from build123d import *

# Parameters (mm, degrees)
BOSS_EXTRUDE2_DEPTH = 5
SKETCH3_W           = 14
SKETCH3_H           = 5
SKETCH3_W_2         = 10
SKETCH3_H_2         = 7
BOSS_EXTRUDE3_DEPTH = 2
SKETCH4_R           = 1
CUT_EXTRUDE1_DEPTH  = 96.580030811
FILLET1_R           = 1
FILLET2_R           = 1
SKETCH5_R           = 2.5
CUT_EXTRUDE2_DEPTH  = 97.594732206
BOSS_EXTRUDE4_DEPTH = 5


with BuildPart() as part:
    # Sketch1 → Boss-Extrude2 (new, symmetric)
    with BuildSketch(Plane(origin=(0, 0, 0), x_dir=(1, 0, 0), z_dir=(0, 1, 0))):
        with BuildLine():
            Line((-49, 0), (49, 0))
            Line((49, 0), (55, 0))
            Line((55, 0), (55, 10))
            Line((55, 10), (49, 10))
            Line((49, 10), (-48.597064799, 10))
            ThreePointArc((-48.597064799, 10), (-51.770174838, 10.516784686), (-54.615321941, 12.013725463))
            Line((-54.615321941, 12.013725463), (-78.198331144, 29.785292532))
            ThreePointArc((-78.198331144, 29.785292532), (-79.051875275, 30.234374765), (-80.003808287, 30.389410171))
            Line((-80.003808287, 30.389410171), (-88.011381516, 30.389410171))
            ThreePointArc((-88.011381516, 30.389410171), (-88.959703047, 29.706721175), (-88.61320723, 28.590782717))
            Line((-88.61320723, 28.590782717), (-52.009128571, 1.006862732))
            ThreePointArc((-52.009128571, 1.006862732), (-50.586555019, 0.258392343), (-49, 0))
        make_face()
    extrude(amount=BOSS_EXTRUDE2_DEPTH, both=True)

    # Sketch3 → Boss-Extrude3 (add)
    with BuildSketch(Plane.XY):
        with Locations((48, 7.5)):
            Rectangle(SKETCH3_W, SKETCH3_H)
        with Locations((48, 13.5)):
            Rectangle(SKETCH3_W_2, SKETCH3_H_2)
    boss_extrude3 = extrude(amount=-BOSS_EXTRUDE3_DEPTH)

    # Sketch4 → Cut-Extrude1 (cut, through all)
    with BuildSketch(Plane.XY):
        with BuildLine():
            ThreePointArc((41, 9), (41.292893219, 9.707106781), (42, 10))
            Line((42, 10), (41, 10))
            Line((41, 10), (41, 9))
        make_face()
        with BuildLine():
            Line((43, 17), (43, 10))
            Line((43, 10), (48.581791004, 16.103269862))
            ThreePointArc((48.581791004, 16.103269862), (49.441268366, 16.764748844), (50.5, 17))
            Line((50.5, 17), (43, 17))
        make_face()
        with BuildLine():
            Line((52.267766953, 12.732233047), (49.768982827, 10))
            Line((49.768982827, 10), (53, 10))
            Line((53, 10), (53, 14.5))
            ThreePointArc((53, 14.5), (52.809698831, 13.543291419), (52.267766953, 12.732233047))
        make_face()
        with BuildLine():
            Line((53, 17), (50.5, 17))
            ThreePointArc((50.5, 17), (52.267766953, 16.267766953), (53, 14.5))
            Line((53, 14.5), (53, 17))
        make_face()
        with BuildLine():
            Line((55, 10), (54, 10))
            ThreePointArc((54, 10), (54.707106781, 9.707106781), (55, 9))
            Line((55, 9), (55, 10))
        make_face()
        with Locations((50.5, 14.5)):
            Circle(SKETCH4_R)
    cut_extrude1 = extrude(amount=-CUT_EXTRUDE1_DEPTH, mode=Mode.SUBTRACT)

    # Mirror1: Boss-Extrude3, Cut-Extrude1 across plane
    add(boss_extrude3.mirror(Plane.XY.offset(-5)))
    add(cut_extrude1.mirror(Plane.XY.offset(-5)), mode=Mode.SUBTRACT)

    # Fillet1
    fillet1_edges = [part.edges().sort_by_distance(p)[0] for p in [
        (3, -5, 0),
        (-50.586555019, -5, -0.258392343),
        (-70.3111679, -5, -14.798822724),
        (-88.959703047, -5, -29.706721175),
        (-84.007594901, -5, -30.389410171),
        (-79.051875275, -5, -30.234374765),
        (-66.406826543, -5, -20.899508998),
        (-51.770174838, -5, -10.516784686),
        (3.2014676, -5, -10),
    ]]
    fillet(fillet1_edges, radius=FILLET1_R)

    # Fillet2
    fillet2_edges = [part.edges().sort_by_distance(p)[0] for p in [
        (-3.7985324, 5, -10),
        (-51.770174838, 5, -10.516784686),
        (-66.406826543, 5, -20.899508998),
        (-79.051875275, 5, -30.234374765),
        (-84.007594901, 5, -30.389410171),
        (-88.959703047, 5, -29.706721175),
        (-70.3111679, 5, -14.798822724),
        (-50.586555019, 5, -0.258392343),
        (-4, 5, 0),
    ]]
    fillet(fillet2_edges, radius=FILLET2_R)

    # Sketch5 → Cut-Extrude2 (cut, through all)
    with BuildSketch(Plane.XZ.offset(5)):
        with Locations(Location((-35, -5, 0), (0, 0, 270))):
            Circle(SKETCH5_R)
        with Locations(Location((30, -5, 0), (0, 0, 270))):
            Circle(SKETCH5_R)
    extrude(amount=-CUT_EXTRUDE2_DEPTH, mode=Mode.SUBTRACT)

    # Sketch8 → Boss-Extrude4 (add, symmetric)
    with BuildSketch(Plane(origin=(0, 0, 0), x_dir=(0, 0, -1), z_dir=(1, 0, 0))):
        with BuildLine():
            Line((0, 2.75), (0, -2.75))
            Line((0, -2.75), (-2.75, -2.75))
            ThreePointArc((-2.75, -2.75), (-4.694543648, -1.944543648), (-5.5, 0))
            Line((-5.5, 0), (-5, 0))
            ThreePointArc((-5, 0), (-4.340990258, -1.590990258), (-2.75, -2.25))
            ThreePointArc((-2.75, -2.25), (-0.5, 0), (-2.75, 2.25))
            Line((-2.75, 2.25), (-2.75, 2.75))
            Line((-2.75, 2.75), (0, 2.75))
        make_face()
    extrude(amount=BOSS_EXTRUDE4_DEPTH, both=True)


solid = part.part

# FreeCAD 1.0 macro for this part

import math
import FreeCAD as App
import Part
import Sketcher

V = App.Vector
Q = App.Units.Quantity


def edges_at(feature, points):
    """Names of the edges that pass closest to the given points."""
    edges = feature.Shape.Edges
    near = lambda p: min(range(len(edges)), key=lambda i: edges[i].distToShape(Part.Vertex(*p))[0])
    return sorted({f"Edge{near(p) + 1}" for p in points})


def add_polygon(sketch, points):
    """Adds a closed chain of lines whose ends are joined by coincident constraints."""
    first, n = sketch.GeometryCount, len(points)
    for a, b in zip(points, points[1:] + points[:1]):
        sketch.addGeometry(Part.LineSegment(App.Vector(*a, 0), App.Vector(*b, 0)), False)
    for i in range(n):
        sketch.addConstraint(Sketcher.Constraint("Coincident", first + i, 2, first + (i + 1) % n, 1))

doc = App.newDocument("Part")
body = doc.addObject("PartDesign::Body", "Body")

# Sketch on XZ plane
sketch1 = body.newObject("Sketcher::SketchObject", "Sketch")
sketch1.AttachmentSupport = (doc.getObject("XZ_Plane"), [""])
sketch1.MapMode = "FlatFace"
sketch1.addGeometry(Part.LineSegment(V(-49, 0, 0), V(55, 0, 0)), False)
sketch1.addGeometry(Part.LineSegment(V(55, 0, 0), V(55, -10, 0)), False)
sketch1.addGeometry(Part.LineSegment(V(55, -10, 0), V(-48.597065, -10, 0)), False)
sketch1.addGeometry(Part.ArcOfCircle(Part.Circle(V(-48.597065, -20, 0), V(0, 0, 1), 10), math.radians(90), math.radians(127.000767)), False)
sketch1.addGeometry(Part.LineSegment(V(-54.615322, -12.013725, 0), V(-78.198331, -29.785293, 0)), False)
sketch1.addGeometry(Part.ArcOfCircle(Part.Circle(V(-80.003808, -27.38941, 0), V(0, 0, 1), 3), math.radians(-90), math.radians(-52.999233)), False)
sketch1.addGeometry(Part.LineSegment(V(-80.003808, -30.38941, 0), V(-88.011382, -30.38941, 0)), False)
sketch1.addGeometry(Part.ArcOfCircle(Part.Circle(V(-88.011382, -29.38941, 0), V(0, 0, 1), 1), math.radians(127.000767), math.radians(270)), False)
sketch1.addGeometry(Part.LineSegment(V(-88.613207, -28.590783, 0), V(-52.009129, -1.006863, 0)), False)
sketch1.addGeometry(Part.ArcOfCircle(Part.Circle(V(-49, -5, 0), V(0, 0, 1), 5), math.radians(90), math.radians(127.000767)), False)
sketch1.addConstraint(Sketcher.Constraint("Coincident", 0, 2, 1, 1))
sketch1.addConstraint(Sketcher.Constraint("Coincident", 1, 2, 2, 1))
sketch1.addConstraint(Sketcher.Constraint("Tangent", 2, 2, 3, 1))
sketch1.addConstraint(Sketcher.Constraint("Tangent", 3, 2, 4, 1))
sketch1.addConstraint(Sketcher.Constraint("Tangent", 4, 2, 5, 2))
sketch1.addConstraint(Sketcher.Constraint("Tangent", 5, 1, 6, 1))
sketch1.addConstraint(Sketcher.Constraint("Tangent", 6, 2, 7, 2))
sketch1.addConstraint(Sketcher.Constraint("Tangent", 7, 1, 8, 1))
sketch1.addConstraint(Sketcher.Constraint("Tangent", 8, 2, 9, 2))
sketch1.addConstraint(Sketcher.Constraint("Tangent", 9, 1, 0, 1))
sketch1.addConstraint(Sketcher.Constraint("Horizontal", 0))
sketch1.addConstraint(Sketcher.Constraint("Vertical", 1))
sketch1.addConstraint(Sketcher.Constraint("Horizontal", 2))
sketch1.addConstraint(Sketcher.Constraint("Horizontal", 6))
sketch1.addConstraint(Sketcher.Constraint("PointOnObject", 0, 2, -1))
sketch1.addConstraint(Sketcher.Constraint("Parallel", 4, 8))
sketch1.addConstraint(Sketcher.Constraint("Radius", 3, Q("10 mm")))
sketch1.addConstraint(Sketcher.Constraint("Radius", 5, Q("3 mm")))
sketch1.addConstraint(Sketcher.Constraint("Radius", 7, Q("1 mm")))
sketch1.addConstraint(Sketcher.Constraint("Radius", 9, Q("5 mm")))
sketch1.addConstraint(Sketcher.Constraint("DistanceX", 0, 1, 0, 2, Q("104 mm")))
sketch1.addConstraint(Sketcher.Constraint("DistanceY", 1, 2, 1, 1, Q("10 mm")))
sketch1.addConstraint(Sketcher.Constraint("DistanceX", 9, 3, -1, 1, Q("49 mm")))
sketch1.addConstraint(Sketcher.Constraint("DistanceX", 7, 1, 5, 3, Q("8.609399 mm")))
sketch1.addConstraint(Sketcher.Constraint("DistanceX", 2, 2, 2, 1, Q("103.597065 mm")))
sketch1.addConstraint(Sketcher.Constraint("DistanceX", 5, 3, -1, 1, Q("80.003808 mm")))
pad1 = body.newObject("PartDesign::Pad", "Pad")
pad1.Profile = sketch1
pad1.Length = 10
pad1.Midplane = True

# Sketch on XY plane
sketch2 = body.newObject("Sketcher::SketchObject", "Sketch001")
sketch2.AttachmentSupport = (doc.getObject("XY_Plane"), [""])
sketch2.MapMode = "FlatFace"
add_polygon(sketch2, [(41, 10), (41, 5), (55, 5), (55, 10), (53, 10), (53, 17), (43, 17), (43, 10)])  # lines 0-7
sketch2.addConstraint(Sketcher.Constraint("Vertical", 0))
sketch2.addConstraint(Sketcher.Constraint("Horizontal", 1))
sketch2.addConstraint(Sketcher.Constraint("Vertical", 2))
sketch2.addConstraint(Sketcher.Constraint("Horizontal", 3))
sketch2.addConstraint(Sketcher.Constraint("Vertical", 4))
sketch2.addConstraint(Sketcher.Constraint("Horizontal", 5))
sketch2.addConstraint(Sketcher.Constraint("Vertical", 6))
sketch2.addConstraint(Sketcher.Constraint("Horizontal", 7))
sketch2.addConstraint(Sketcher.Constraint("Horizontal", 3, 2, 6, 2))
sketch2.addConstraint(Sketcher.Constraint("Equal", 3, 7))
sketch2.addConstraint(Sketcher.Constraint("DistanceX", 1, 1, 1, 2, Q("14 mm")))
sketch2.addConstraint(Sketcher.Constraint("DistanceX", 3, 2, 3, 1, Q("2 mm")))
sketch2.addConstraint(Sketcher.Constraint("DistanceY", 0, 2, 0, 1, Q("5 mm")))
sketch2.addConstraint(Sketcher.Constraint("DistanceY", 4, 1, 4, 2, Q("7 mm")))
sketch2.addConstraint(Sketcher.Constraint("DistanceX", -1, 1, 0, 2, Q("41 mm")))
sketch2.addConstraint(Sketcher.Constraint("DistanceY", -1, 1, 0, 2, Q("5 mm")))
pad2 = body.newObject("PartDesign::Pad", "Pad001")
pad2.Profile = sketch2
pad2.Length = 2
pad2.Reversed = True

# Sketch on XY plane
sketch3 = body.newObject("Sketcher::SketchObject", "Sketch002")
sketch3.AttachmentSupport = (doc.getObject("XY_Plane"), [""])
sketch3.MapMode = "FlatFace"
sketch3.addGeometry(Part.ArcOfCircle(Part.Circle(V(42, 9, 0), V(0, 0, 1), 1), math.radians(90), math.radians(180)), False)
sketch3.addGeometry(Part.LineSegment(V(42, 10, 0), V(41, 10, 0)), False)
sketch3.addGeometry(Part.LineSegment(V(41, 10, 0), V(41, 9, 0)), False)
sketch3.addGeometry(Part.LineSegment(V(43, 17, 0), V(43, 10, 0)), False)
sketch3.addGeometry(Part.LineSegment(V(43, 10, 0), V(48.581791, 16.10327, 0)), False)
sketch3.addGeometry(Part.ArcOfCircle(Part.Circle(V(50.5, 14.5, 0), V(0, 0, 1), 2.5), math.radians(90), math.radians(140.110581)), False)
sketch3.addGeometry(Part.LineSegment(V(50.5, 17, 0), V(43, 17, 0)), False)
sketch3.addGeometry(Part.LineSegment(V(52.267767, 12.732233, 0), V(49.768983, 10, 0)), False)
sketch3.addGeometry(Part.LineSegment(V(49.768983, 10, 0), V(53, 10, 0)), False)
sketch3.addGeometry(Part.LineSegment(V(53, 10, 0), V(53, 14.5, 0)), False)
sketch3.addGeometry(Part.ArcOfCircle(Part.Circle(V(50.5, 14.5, 0), V(0, 0, 1), 2.5), math.radians(-45), math.radians(0)), False)
sketch3.addGeometry(Part.LineSegment(V(53, 17, 0), V(50.5, 17, 0)), False)
sketch3.addGeometry(Part.ArcOfCircle(Part.Circle(V(50.5, 14.5, 0), V(0, 0, 1), 2.5), math.radians(0), math.radians(90)), False)
sketch3.addGeometry(Part.LineSegment(V(53, 14.5, 0), V(53, 17, 0)), False)
sketch3.addGeometry(Part.LineSegment(V(55, 10, 0), V(54, 10, 0)), False)
sketch3.addGeometry(Part.ArcOfCircle(Part.Circle(V(54, 9, 0), V(0, 0, 1), 1), math.radians(0), math.radians(90)), False)
sketch3.addGeometry(Part.LineSegment(V(55, 9, 0), V(55, 10, 0)), False)
sketch3.addGeometry(Part.Circle(V(50.5, 14.5, 0), V(0, 0, 1), 1), False)
sketch3.addConstraint(Sketcher.Constraint("Tangent", 0, 1, 1, 1))
sketch3.addConstraint(Sketcher.Constraint("Coincident", 1, 2, 2, 1))
sketch3.addConstraint(Sketcher.Constraint("Tangent", 2, 2, 0, 2))
sketch3.addConstraint(Sketcher.Constraint("Coincident", 3, 2, 4, 1))
sketch3.addConstraint(Sketcher.Constraint("Coincident", 4, 2, 5, 2))
sketch3.addConstraint(Sketcher.Constraint("Tangent", 5, 1, 6, 1))
sketch3.addConstraint(Sketcher.Constraint("Coincident", 6, 2, 3, 1))
sketch3.addConstraint(Sketcher.Constraint("Coincident", 7, 2, 8, 1))
sketch3.addConstraint(Sketcher.Constraint("Coincident", 8, 2, 9, 1))
sketch3.addConstraint(Sketcher.Constraint("Tangent", 9, 2, 10, 2))
sketch3.addConstraint(Sketcher.Constraint("Coincident", 10, 1, 7, 1))
sketch3.addConstraint(Sketcher.Constraint("Tangent", 11, 2, 12, 2))
sketch3.addConstraint(Sketcher.Constraint("Tangent", 12, 1, 13, 1))
sketch3.addConstraint(Sketcher.Constraint("Coincident", 13, 2, 11, 1))
sketch3.addConstraint(Sketcher.Constraint("Tangent", 14, 2, 15, 2))
sketch3.addConstraint(Sketcher.Constraint("Tangent", 15, 1, 16, 1))
sketch3.addConstraint(Sketcher.Constraint("Coincident", 16, 2, 14, 1))
sketch3.addConstraint(Sketcher.Constraint("Horizontal", 1))
sketch3.addConstraint(Sketcher.Constraint("Vertical", 2))
sketch3.addConstraint(Sketcher.Constraint("Vertical", 3))
sketch3.addConstraint(Sketcher.Constraint("Horizontal", 6))
sketch3.addConstraint(Sketcher.Constraint("Horizontal", 8))
sketch3.addConstraint(Sketcher.Constraint("Vertical", 9))
sketch3.addConstraint(Sketcher.Constraint("Horizontal", 11))
sketch3.addConstraint(Sketcher.Constraint("Vertical", 13))
sketch3.addConstraint(Sketcher.Constraint("Horizontal", 14))
sketch3.addConstraint(Sketcher.Constraint("Vertical", 16))
sketch3.addConstraint(Sketcher.Constraint("Coincident", 10, 3, 5, 3))
sketch3.addConstraint(Sketcher.Constraint("Coincident", 12, 3, 5, 3))
sketch3.addConstraint(Sketcher.Constraint("Coincident", 17, 3, 5, 3))
sketch3.addConstraint(Sketcher.Constraint("Equal", 5, 10))
sketch3.addConstraint(Sketcher.Constraint("Equal", 10, 12))
sketch3.addConstraint(Sketcher.Constraint("Equal", 0, 15))
sketch3.addConstraint(Sketcher.Constraint("Equal", 15, 17))
sketch3.addConstraint(Sketcher.Constraint("Parallel", 4, 7))
sketch3.addConstraint(Sketcher.Constraint("Horizontal", 0, 3, 15, 3))
sketch3.addConstraint(Sketcher.Constraint("Horizontal", 1, 2, 3, 2))
sketch3.addConstraint(Sketcher.Constraint("Horizontal", 3, 2, 7, 2))
sketch3.addConstraint(Sketcher.Constraint("Diameter", 17, Q("2 mm")))
sketch3.addConstraint(Sketcher.Constraint("Radius", 5, Q("2.5 mm")))
sketch3.addConstraint(Sketcher.Constraint("DistanceY", 3, 2, 3, 1, Q("7 mm")))
sketch3.addConstraint(Sketcher.Constraint("DistanceX", 6, 2, 6, 1, Q("7.5 mm")))
sketch3.addConstraint(Sketcher.Constraint("DistanceX", -1, 1, 0, 3, Q("42 mm")))
sketch3.addConstraint(Sketcher.Constraint("DistanceY", -1, 1, 0, 3, Q("9 mm")))
sketch3.addConstraint(Sketcher.Constraint("DistanceX", -1, 1, 15, 3, Q("54 mm")))
sketch3.addConstraint(Sketcher.Constraint("DistanceX", -1, 1, 3, 2, Q("43 mm")))
sketch3.addConstraint(Sketcher.Constraint("Distance", 4, Q("8.27081 mm")))
sketch3.addConstraint(Sketcher.Constraint("Distance", 7, Q("3.702569 mm")))
pocket1 = body.newObject("PartDesign::Pocket", "Pocket")
pocket1.Profile = sketch3
pocket1.Type = "ThroughAll"
doc.recompute()

datumplane = body.newObject("PartDesign::Plane", "DatumPlane")
datumplane.AttachmentSupport = (doc.getObject("XY_Plane"), [""])
datumplane.MapMode = "FlatFace"
datumplane.AttachmentOffset = App.Placement(V(0, 0, -5), App.Rotation())
mirrored = body.newObject("PartDesign::Mirrored", "Mirrored")
mirrored.Originals = [pad2, pocket1]
mirrored.MirrorPlane = (datumplane, [""])
body.Tip = mirrored
doc.recompute()

fillet = body.newObject("PartDesign::Fillet", "Fillet")
fillet.Base = (mirrored, edges_at(mirrored, [
    (3, -5, 0),
    (-50.587, -5, -0.258),
    (-70.311, -5, -14.799),
    (-88.96, -5, -29.707),
    (-84.008, -5, -30.389),
    (-79.052, -5, -30.234),
    (-66.407, -5, -20.9),
    (-51.77, -5, -10.517),
    (3.201, -5, -10),
]))
fillet.Radius = 1
doc.recompute()

fillet2 = body.newObject("PartDesign::Fillet", "Fillet001")
fillet2.Base = (fillet, edges_at(fillet, [
    (-3.799, 5, -10),
    (-51.77, 5, -10.517),
    (-66.407, 5, -20.9),
    (-79.052, 5, -30.234),
    (-84.008, 5, -30.389),
    (-88.96, 5, -29.707),
    (-70.311, 5, -14.799),
    (-50.587, 5, -0.258),
    (-4, 5, 0),
]))
fillet2.Radius = 1

# Sketch on XZ plane
sketch4 = body.newObject("Sketcher::SketchObject", "Sketch003")
sketch4.AttachmentSupport = (doc.getObject("XZ_Plane"), [""])
sketch4.MapMode = "FlatFace"
sketch4.AttachmentOffset = App.Placement(V(0, 0, 5), App.Rotation())
sketch4.addGeometry(Part.Circle(V(-35, -5, 0), V(0, 0, 1), 2.5), False)
sketch4.addGeometry(Part.Circle(V(30, -5, 0), V(0, 0, 1), 2.5), False)
sketch4.addConstraint(Sketcher.Constraint("Equal", 0, 1))
sketch4.addConstraint(Sketcher.Constraint("Horizontal", 0, 3, 1, 3))
sketch4.addConstraint(Sketcher.Constraint("Diameter", 0, Q("5 mm")))
sketch4.addConstraint(Sketcher.Constraint("DistanceX", 0, 3, -1, 1, Q("35 mm")))
sketch4.addConstraint(Sketcher.Constraint("DistanceY", 0, 3, -1, 1, Q("5 mm")))
sketch4.addConstraint(Sketcher.Constraint("DistanceX", -1, 1, 1, 3, Q("30 mm")))
pocket2 = body.newObject("PartDesign::Pocket", "Pocket001")
pocket2.Profile = sketch4
pocket2.Type = "ThroughAll"

# Sketch on YZ plane
sketch5 = body.newObject("Sketcher::SketchObject", "Sketch004")
sketch5.AttachmentSupport = (doc.getObject("YZ_Plane"), [""])
sketch5.MapMode = "FlatFace"
sketch5.addGeometry(Part.LineSegment(V(-2.75, 0, 0), V(2.75, 0, 0)), False)
sketch5.addGeometry(Part.LineSegment(V(2.75, 0, 0), V(2.75, 2.75, 0)), False)
sketch5.addGeometry(Part.LineSegment(V(2.75, 2.75, 0), V(2.25, 2.75, 0)), False)
sketch5.addGeometry(Part.ArcOfCircle(Part.Circle(V(0, 2.75, 0), V(0, 0, 1), 2.25), math.radians(180), math.radians(360)), False)
sketch5.addGeometry(Part.ArcOfCircle(Part.Circle(V(0, 2.75, 0), V(0, 0, 1), 2.25), math.radians(90), math.radians(180)), False)
sketch5.addGeometry(Part.LineSegment(V(0, 5, 0), V(0, 5.5, 0)), False)
sketch5.addGeometry(Part.ArcOfCircle(Part.Circle(V(0, 2.75, 0), V(0, 0, 1), 2.75), math.radians(90), math.radians(180)), False)
sketch5.addGeometry(Part.LineSegment(V(-2.75, 2.75, 0), V(-2.75, 0, 0)), False)
sketch5.addConstraint(Sketcher.Constraint("Coincident", 0, 2, 1, 1))
sketch5.addConstraint(Sketcher.Constraint("Coincident", 1, 2, 2, 1))
sketch5.addConstraint(Sketcher.Constraint("Coincident", 2, 2, 3, 2))
sketch5.addConstraint(Sketcher.Constraint("Tangent", 3, 1, 4, 2))
sketch5.addConstraint(Sketcher.Constraint("Coincident", 4, 1, 5, 1))
sketch5.addConstraint(Sketcher.Constraint("Coincident", 5, 2, 6, 1))
sketch5.addConstraint(Sketcher.Constraint("Tangent", 6, 2, 7, 1))
sketch5.addConstraint(Sketcher.Constraint("Coincident", 7, 2, 0, 1))
sketch5.addConstraint(Sketcher.Constraint("Horizontal", 0))
sketch5.addConstraint(Sketcher.Constraint("Vertical", 1))
sketch5.addConstraint(Sketcher.Constraint("Horizontal", 2))
sketch5.addConstraint(Sketcher.Constraint("Vertical", 5))
sketch5.addConstraint(Sketcher.Constraint("Vertical", 7))
sketch5.addConstraint(Sketcher.Constraint("Coincident", 6, 3, 3, 3))
sketch5.addConstraint(Sketcher.Constraint("Equal", 3, 4))
sketch5.addConstraint(Sketcher.Constraint("Symmetric", 0, 2, 7, 2, -1, 1))
sketch5.addConstraint(Sketcher.Constraint("Symmetric", 2, 2, 3, 1, -2))
sketch5.addConstraint(Sketcher.Constraint("PointOnObject", 4, 1, -2))
sketch5.addConstraint(Sketcher.Constraint("Horizontal", 6, 3, 1, 2))
sketch5.addConstraint(Sketcher.Constraint("Radius", 3, Q("2.25 mm")))
sketch5.addConstraint(Sketcher.Constraint("Radius", 6, Q("2.75 mm")))
sketch5.addConstraint(Sketcher.Constraint("DistanceY", -1, 1, 4, 1, Q("5 mm")))
pad3 = body.newObject("PartDesign::Pad", "Pad002")
pad3.Profile = sketch5
pad3.Length = 10
pad3.Midplane = True

doc.recompute()
